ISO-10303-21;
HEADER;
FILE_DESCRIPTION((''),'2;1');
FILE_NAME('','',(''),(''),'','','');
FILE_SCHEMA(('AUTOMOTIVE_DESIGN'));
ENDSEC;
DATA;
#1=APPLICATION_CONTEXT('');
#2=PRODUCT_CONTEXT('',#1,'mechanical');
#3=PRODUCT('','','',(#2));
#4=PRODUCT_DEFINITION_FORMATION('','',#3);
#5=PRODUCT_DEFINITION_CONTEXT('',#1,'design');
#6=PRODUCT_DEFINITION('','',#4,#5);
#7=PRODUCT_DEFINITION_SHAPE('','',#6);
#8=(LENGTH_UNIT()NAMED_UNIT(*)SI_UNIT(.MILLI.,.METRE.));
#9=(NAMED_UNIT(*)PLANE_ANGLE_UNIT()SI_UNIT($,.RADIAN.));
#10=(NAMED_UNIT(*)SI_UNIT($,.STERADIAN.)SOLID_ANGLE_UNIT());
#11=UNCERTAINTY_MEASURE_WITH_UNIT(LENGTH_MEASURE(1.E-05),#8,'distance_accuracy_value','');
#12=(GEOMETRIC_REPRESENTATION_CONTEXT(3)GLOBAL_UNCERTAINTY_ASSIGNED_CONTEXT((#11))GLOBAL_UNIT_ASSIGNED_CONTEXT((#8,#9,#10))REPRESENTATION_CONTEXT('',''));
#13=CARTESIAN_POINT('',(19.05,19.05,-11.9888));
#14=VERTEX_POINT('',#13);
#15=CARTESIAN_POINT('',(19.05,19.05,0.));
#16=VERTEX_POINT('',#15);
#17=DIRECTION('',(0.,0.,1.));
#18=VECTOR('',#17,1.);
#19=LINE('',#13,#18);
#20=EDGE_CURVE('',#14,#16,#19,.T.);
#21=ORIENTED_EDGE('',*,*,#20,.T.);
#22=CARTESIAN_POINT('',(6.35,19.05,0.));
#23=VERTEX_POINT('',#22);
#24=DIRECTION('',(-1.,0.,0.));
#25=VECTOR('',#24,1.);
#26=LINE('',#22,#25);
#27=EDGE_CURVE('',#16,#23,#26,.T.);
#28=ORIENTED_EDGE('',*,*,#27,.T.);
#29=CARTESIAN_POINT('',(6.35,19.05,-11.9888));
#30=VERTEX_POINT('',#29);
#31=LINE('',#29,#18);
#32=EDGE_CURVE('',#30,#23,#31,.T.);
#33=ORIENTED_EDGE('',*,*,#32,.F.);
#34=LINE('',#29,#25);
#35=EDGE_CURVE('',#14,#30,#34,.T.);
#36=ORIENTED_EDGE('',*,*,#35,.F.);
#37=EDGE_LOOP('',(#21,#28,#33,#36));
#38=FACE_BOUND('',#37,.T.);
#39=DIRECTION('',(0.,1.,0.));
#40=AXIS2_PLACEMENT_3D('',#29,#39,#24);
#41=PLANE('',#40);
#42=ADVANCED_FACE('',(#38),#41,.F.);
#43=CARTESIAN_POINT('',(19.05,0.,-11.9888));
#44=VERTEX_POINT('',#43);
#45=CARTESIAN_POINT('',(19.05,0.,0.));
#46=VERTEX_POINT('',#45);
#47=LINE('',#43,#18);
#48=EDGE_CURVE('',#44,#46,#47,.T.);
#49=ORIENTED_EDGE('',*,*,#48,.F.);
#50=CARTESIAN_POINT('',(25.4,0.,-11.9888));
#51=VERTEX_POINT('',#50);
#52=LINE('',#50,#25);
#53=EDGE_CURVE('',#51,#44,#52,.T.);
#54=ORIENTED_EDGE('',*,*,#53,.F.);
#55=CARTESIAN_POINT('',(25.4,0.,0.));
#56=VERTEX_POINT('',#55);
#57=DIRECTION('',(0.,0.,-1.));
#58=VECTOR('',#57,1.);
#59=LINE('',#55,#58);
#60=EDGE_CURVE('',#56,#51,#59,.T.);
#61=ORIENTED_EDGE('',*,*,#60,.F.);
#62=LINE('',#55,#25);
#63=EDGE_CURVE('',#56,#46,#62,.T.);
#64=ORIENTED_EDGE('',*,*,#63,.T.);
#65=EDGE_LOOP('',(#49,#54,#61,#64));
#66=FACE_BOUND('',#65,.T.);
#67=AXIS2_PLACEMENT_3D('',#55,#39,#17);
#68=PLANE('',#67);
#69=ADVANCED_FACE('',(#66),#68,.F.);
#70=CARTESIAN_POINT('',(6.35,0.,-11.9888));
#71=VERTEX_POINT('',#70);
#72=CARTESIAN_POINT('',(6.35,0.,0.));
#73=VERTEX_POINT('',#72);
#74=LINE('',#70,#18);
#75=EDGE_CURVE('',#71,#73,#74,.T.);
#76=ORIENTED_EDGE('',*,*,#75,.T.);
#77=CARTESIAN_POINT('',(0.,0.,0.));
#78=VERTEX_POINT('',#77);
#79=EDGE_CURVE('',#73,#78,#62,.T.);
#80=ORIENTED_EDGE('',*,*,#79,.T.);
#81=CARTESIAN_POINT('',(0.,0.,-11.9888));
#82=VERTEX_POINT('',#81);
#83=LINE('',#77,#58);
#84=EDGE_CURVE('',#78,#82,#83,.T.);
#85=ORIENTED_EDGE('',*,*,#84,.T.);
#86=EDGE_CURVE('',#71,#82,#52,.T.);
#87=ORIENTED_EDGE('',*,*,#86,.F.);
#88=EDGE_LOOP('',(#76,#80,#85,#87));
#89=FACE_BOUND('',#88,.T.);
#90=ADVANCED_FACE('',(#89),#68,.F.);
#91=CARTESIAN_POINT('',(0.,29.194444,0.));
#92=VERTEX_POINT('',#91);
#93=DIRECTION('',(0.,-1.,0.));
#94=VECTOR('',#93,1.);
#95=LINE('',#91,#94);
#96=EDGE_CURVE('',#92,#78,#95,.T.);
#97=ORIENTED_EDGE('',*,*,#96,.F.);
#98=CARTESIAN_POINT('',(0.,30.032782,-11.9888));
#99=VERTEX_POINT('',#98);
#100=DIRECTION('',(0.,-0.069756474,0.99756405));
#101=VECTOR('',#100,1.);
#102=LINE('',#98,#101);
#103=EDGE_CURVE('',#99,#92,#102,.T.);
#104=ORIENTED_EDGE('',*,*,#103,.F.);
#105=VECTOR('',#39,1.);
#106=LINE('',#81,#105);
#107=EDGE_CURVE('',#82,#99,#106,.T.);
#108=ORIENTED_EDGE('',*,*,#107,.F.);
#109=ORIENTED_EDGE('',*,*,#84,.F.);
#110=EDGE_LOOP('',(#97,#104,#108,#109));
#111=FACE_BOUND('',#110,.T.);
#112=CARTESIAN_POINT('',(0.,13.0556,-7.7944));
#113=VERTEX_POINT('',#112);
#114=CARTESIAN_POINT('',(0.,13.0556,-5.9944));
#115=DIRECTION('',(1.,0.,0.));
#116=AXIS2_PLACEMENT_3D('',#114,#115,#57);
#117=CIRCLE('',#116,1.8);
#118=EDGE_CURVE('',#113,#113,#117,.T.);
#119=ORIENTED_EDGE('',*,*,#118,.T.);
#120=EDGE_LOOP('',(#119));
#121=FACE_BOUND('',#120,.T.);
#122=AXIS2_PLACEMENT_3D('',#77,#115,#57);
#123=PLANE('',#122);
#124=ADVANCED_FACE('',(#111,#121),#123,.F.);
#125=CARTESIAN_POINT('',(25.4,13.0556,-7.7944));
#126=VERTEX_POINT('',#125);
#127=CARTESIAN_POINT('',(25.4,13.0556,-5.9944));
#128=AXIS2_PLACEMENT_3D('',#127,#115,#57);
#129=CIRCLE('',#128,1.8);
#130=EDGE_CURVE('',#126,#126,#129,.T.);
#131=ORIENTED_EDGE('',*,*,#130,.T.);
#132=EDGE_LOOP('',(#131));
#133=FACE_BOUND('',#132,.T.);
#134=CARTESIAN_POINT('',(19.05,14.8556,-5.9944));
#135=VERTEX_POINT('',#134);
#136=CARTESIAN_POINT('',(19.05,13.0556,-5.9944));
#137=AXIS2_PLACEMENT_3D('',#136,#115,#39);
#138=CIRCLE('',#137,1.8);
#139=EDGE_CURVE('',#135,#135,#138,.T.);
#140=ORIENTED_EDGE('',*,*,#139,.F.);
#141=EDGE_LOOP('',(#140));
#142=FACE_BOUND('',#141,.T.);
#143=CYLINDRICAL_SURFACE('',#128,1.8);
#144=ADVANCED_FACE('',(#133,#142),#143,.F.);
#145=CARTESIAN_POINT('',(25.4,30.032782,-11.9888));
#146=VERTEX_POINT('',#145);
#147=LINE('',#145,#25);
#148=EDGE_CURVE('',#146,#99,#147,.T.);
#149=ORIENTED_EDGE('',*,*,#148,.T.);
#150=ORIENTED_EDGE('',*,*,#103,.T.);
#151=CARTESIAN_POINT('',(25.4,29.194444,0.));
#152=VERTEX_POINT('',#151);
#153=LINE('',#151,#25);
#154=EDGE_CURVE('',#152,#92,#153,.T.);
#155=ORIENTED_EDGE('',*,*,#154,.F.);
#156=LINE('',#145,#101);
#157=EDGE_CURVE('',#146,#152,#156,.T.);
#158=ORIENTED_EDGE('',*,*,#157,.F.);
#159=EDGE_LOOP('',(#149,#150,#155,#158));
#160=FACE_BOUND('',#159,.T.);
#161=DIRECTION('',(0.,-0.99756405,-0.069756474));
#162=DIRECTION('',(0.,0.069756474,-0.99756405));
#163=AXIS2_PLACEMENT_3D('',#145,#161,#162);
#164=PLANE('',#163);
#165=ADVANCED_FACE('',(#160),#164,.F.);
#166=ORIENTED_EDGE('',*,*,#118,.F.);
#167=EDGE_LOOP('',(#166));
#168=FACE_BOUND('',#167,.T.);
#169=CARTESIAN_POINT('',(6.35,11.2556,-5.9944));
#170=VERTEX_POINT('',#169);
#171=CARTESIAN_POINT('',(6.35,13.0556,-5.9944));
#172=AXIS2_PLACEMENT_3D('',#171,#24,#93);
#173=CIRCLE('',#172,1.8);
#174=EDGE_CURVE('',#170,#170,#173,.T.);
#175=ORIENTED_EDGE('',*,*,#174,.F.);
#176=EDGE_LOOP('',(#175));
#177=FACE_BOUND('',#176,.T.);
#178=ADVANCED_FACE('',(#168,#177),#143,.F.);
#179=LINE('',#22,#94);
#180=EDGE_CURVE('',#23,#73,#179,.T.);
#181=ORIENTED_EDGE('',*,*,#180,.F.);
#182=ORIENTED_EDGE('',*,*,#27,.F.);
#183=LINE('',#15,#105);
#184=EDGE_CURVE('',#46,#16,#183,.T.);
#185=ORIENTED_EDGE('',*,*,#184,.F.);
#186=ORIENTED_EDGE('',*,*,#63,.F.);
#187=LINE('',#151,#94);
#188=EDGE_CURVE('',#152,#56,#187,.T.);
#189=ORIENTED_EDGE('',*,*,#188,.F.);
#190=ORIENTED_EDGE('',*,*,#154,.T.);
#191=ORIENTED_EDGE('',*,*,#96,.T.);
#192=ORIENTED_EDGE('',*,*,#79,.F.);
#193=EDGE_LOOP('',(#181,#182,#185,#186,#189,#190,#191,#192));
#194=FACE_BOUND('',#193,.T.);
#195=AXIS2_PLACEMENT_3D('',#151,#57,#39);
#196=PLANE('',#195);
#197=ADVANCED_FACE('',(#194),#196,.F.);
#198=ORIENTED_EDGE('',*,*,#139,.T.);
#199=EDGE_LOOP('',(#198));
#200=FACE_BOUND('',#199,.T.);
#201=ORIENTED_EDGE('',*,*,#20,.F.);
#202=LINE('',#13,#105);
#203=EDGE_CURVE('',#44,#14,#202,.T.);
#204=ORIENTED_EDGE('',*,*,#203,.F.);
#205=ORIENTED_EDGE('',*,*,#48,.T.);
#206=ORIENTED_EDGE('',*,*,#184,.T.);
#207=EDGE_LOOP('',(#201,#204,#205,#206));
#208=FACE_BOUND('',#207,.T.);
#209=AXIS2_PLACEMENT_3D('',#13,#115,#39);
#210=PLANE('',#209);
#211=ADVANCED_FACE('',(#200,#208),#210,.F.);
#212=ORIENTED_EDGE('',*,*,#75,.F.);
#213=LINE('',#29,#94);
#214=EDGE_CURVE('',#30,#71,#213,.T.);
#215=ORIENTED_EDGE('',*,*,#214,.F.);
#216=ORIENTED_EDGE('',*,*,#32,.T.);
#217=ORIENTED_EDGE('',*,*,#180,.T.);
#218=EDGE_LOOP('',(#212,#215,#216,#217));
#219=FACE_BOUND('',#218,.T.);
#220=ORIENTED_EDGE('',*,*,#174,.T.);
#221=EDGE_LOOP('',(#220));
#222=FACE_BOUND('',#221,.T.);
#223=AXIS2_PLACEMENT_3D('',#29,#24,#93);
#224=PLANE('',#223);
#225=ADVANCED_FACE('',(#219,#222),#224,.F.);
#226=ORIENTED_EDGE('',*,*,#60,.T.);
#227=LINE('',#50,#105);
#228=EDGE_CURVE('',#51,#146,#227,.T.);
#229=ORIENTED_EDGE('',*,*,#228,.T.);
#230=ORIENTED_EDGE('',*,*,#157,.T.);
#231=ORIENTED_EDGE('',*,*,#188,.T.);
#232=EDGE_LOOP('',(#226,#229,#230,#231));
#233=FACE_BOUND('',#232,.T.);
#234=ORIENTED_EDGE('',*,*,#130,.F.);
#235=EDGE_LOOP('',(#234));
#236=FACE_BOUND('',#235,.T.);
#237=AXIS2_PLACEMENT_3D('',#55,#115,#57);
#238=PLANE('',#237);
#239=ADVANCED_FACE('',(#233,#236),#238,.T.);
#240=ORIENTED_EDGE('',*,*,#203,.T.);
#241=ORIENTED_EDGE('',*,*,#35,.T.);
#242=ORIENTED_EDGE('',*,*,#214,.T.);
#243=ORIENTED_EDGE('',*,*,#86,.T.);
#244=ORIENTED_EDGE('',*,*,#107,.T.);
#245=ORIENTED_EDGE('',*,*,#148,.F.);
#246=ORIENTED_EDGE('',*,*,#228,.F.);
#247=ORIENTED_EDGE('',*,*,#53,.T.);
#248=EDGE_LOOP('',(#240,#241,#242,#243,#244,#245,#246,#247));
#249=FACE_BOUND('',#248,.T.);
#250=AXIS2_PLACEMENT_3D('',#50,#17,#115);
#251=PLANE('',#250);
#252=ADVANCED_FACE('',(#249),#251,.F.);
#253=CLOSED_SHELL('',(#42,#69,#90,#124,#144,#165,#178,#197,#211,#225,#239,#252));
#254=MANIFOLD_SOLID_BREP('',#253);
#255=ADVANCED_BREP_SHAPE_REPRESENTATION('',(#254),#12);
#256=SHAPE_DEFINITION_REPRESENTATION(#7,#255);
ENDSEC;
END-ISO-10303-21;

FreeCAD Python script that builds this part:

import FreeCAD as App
import Part
import Sketcher
from FreeCAD import Vector
Q = App.Units.Quantity


def add_polygon(sketch, points):
    """Adds a closed chain of lines whose ends are joined by coincident constraints."""
    first, n = sketch.GeometryCount, len(points)
    for a, b in zip(points, points[1:] + points[:1]):
        sketch.addGeometry(Part.LineSegment(App.Vector(*a, 0), App.Vector(*b, 0)), False)
    for i in range(n):
        sketch.addConstraint(Sketcher.Constraint("Coincident", first + i, 2, first + (i + 1) % n, 1))

doc = App.newDocument("Part")
body = doc.addObject("PartDesign::Body", "Body")

# Sketch on YZ plane
sketch1 = body.newObject("Sketcher::SketchObject", "Sketch")
sketch1.AttachmentSupport = (doc.getObject("YZ_Plane"), [""])
sketch1.MapMode = "FlatFace"
add_polygon(sketch1, [(0, 0), (0, -12), (30, -12), (29, 0)])  # lines 0-3
sketch1.addConstraint([
    Sketcher.Constraint("Vertical", 0),
    Sketcher.Constraint("Horizontal", 1),
    Sketcher.Constraint("Horizontal", 3),
    Sketcher.Constraint("Coincident", 3, 2, -1, 1),
    Sketcher.Constraint("Angle", 2, Q("94 deg")),
    Sketcher.Constraint("DistanceY", 0, 2, 0, 1, Q("0.472 in")),
    Sketcher.Constraint("DistanceX", 1, 1, 1, 2, 30.032782),
])
pad1 = body.newObject("PartDesign::Pad", "Pad")
pad1.Profile = sketch1
pad1.Length = Q("1 in")

# Sketch on XY plane
sketch2 = body.newObject("Sketcher::SketchObject", "Sketch001")
sketch2.AttachmentSupport = (doc.getObject("XY_Plane"), [""])
sketch2.MapMode = "FlatFace"
add_polygon(sketch2, [(6, 19), (6, 0), (19, 0), (19, 19)])  # lines 0-3
sketch2.addConstraint([
    Sketcher.Constraint("Vertical", 0),
    Sketcher.Constraint("Horizontal", 1),
    Sketcher.Constraint("Vertical", 2),
    Sketcher.Constraint("Horizontal", 3),
    Sketcher.Constraint("PointOnObject", 0, 2, -1),
    Sketcher.Constraint("DistanceX", 1, 1, 1, 2, Q("0.5 in")),
    Sketcher.Constraint("DistanceY", 0, 2, 0, 1, Q("0.75 in")),
    Sketcher.Constraint("DistanceX", -1, 1, 0, 2, Q("0.25 in")),
])
pocket1 = body.newObject("PartDesign::Pocket", "Pocket")
pocket1.Profile = sketch2
pocket1.Type = "ThroughAll"

# Sketch on YZ plane
sketch3 = body.newObject("Sketcher::SketchObject", "Sketch002")
sketch3.AttachmentSupport = (doc.getObject("YZ_Plane"), [""])
sketch3.MapMode = "FlatFace"
sketch3.AttachmentOffset = App.Placement(Vector(0, 0, 1 * 25.4), App.Rotation())
sketch3.addGeometry(Part.Circle(Vector(13.1, -6, 0), Vector(0, 0, 1), 1.8), False)
sketch3.addConstraint([
    Sketcher.Constraint("Diameter", 0, 3.6),
    Sketcher.Constraint("DistanceX", -1, 1, 0, 3, Q("0.514 in")),
    Sketcher.Constraint("DistanceY", 0, 3, -1, 1, Q("0.236 in")),
])
doc.recompute()
hole = body.newObject("PartDesign::Hole", "Hole")
hole.Profile = sketch3
hole.ThreadType = "None"
hole.Diameter = 3.6
hole.DepthType = "ThroughAll"

doc.recompute()
